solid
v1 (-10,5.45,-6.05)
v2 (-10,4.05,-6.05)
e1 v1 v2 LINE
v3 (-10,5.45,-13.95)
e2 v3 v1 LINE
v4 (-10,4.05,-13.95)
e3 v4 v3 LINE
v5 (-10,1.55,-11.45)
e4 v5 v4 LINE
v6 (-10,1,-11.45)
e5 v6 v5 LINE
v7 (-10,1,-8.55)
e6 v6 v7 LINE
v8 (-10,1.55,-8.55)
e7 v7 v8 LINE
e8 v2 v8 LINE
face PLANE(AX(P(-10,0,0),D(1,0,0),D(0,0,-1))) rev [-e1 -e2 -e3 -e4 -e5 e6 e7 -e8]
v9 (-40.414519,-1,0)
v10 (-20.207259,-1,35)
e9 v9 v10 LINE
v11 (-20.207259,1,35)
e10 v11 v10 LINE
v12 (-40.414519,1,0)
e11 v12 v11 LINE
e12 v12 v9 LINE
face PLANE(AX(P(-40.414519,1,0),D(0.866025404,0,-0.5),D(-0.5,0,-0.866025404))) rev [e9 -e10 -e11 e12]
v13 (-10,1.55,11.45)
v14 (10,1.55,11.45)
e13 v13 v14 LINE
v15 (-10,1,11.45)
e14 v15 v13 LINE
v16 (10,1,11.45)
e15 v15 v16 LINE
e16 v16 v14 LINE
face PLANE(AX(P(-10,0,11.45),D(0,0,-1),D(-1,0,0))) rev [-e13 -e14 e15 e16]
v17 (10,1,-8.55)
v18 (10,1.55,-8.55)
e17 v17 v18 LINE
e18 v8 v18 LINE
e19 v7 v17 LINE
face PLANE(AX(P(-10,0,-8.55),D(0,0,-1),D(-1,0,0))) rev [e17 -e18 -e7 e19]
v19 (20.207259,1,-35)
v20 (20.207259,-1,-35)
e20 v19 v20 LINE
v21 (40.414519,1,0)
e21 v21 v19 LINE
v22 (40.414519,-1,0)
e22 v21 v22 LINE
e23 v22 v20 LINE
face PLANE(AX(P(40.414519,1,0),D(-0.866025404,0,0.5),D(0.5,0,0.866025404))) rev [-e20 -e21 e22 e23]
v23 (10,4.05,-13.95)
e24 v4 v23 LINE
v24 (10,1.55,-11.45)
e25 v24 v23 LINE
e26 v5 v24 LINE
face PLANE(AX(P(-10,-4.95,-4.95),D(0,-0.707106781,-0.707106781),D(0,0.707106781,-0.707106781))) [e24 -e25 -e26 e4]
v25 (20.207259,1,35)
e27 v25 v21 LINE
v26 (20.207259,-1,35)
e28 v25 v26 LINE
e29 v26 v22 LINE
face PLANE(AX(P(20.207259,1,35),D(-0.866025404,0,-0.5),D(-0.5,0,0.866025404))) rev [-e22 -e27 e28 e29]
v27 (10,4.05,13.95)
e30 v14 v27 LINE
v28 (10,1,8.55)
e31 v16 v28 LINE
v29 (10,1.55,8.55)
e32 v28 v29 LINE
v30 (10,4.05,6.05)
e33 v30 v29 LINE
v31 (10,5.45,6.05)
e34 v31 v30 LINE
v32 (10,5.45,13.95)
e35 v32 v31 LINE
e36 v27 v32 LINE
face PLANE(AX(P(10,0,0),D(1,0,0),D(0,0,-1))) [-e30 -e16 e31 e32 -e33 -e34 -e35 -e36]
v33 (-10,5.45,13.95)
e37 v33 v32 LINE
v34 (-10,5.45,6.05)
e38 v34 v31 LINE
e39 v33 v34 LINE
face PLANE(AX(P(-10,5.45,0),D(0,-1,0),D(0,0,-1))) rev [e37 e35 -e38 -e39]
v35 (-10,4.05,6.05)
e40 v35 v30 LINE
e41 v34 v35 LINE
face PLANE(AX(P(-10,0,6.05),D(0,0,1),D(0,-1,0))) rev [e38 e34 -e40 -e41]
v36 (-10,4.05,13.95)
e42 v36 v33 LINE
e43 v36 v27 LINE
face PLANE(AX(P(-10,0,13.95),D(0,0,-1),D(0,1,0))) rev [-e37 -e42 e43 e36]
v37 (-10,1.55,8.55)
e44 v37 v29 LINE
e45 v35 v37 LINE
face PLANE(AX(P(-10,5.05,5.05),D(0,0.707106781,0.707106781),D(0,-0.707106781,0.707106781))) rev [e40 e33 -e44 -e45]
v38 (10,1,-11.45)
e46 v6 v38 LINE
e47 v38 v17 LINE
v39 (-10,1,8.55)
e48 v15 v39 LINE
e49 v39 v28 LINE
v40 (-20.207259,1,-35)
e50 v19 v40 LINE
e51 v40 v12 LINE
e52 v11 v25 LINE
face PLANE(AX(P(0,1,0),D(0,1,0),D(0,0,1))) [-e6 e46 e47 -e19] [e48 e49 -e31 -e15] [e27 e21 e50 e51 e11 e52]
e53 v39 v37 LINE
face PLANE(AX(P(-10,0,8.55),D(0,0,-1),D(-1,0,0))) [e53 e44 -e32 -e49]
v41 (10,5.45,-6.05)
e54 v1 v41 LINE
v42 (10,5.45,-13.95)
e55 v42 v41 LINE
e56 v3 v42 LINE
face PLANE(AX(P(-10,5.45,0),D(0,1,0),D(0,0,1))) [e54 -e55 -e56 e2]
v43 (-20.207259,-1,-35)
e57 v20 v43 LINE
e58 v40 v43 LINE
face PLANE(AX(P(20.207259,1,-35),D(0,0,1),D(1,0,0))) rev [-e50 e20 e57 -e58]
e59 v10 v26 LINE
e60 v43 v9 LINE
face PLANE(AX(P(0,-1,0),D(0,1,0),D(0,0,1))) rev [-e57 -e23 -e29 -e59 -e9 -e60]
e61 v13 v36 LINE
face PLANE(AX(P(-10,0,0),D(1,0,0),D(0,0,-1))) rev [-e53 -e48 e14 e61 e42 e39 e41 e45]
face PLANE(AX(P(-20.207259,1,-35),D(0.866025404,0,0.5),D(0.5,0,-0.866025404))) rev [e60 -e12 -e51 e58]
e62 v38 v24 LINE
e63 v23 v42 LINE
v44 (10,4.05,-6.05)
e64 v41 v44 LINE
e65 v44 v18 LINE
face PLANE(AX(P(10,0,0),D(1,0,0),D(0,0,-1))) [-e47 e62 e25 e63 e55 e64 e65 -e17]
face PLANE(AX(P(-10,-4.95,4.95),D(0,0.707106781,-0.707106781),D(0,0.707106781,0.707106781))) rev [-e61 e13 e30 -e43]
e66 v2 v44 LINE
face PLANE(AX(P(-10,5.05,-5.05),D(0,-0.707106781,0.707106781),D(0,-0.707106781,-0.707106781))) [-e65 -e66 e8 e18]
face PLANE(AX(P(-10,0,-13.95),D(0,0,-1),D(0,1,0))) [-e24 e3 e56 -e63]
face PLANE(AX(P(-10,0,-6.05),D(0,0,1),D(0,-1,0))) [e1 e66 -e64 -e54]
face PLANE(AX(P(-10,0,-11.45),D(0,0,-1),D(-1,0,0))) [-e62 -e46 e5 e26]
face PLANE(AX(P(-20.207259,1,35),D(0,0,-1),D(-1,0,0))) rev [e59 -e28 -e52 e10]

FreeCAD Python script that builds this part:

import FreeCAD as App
import Part
import Sketcher
from FreeCAD import Vector
Q = App.Units.Quantity


def add_polygon(sketch, points):
    """Adds a closed chain of lines whose ends are joined by coincident constraints."""
    first, n = sketch.GeometryCount, len(points)
    for a, b in zip(points, points[1:] + points[:1]):
        sketch.addGeometry(Part.LineSegment(App.Vector(*a, 0), App.Vector(*b, 0)), False)
    for i in range(n):
        sketch.addConstraint(Sketcher.Constraint("Coincident", first + i, 2, first + (i + 1) % n, 1))

doc = App.newDocument("Part")
body = doc.addObject("PartDesign::Body", "Body")

# Sketch on XZ plane
sketch1 = body.newObject("Sketcher::SketchObject", "Sketch")
sketch1.AttachmentSupport = (doc.getObject("XZ_Plane"), [""])
sketch1.MapMode = "FlatFace"
add_polygon(sketch1, [(40, 0), (20, -35), (-20, -35), (-40, 0), (-20, 35), (20, 35)])  # lines 0-5
sketch1.addConstraint(Sketcher.Constraint("Horizontal", 1))
sketch1.addConstraint(Sketcher.Constraint("Horizontal", 4))
sketch1.addConstraint(Sketcher.Constraint("Symmetric", 0, 2, 3, 2, -1, 1))
sketch1.addConstraint(Sketcher.Constraint("Symmetric", 2, 2, 5, 2, -1, 1))
sketch1.addConstraint(Sketcher.Constraint("PointOnObject", 2, 2, -1))
sketch1.addConstraint(Sketcher.Constraint("Parallel", 2, 5))
sketch1.addConstraint(Sketcher.Constraint("Vertical", 1, 2, 3, 2))
sketch1.addConstraint(Sketcher.Constraint("Angle", 0, Q("-120 deg")))
sketch1.addConstraint(Sketcher.Constraint("DistanceY", 0, 2, -1, 1, Q("35 mm")))
sketch1.addConstraint(Sketcher.Constraint("DistanceX", 1, 2, 1, 1, Q("40.414519 mm")))
pad1 = body.newObject("PartDesign::Pad", "Pad")
pad1.Profile = sketch1
pad1.Length = 2
pad1.Midplane = True

# Sketch on YZ plane
sketch2 = body.newObject("Sketcher::SketchObject", "Sketch001")
sketch2.AttachmentSupport = (doc.getObject("YZ_Plane"), [""])
sketch2.MapMode = "FlatFace"
add_polygon(sketch2, [(5.5, -6), (4, -6), (1.6, -8.6), (1, -8.6), (1, -11.4), (1.6, -11.4), (4, -13.9), (5.5, -13.9)])  # lines 0-7
add_polygon(sketch2, [(4, 6), (5.5, 6), (5.5, 13.9), (4, 13.9), (1.6, 11.4), (1, 11.4), (1, 8.6), (1.6, 8.6)])  # lines 8-15
sketch2.addConstraint(Sketcher.Constraint("Horizontal", 0))
sketch2.addConstraint(Sketcher.Constraint("Horizontal", 2))
sketch2.addConstraint(Sketcher.Constraint("Vertical", 3))
sketch2.addConstraint(Sketcher.Constraint("Horizontal", 4))
sketch2.addConstraint(Sketcher.Constraint("Horizontal", 6))
sketch2.addConstraint(Sketcher.Constraint("Vertical", 7))
sketch2.addConstraint(Sketcher.Constraint("Horizontal", 8))
sketch2.addConstraint(Sketcher.Constraint("Vertical", 9))
sketch2.addConstraint(Sketcher.Constraint("Horizontal", 10))
sketch2.addConstraint(Sketcher.Constraint("Horizontal", 12))
sketch2.addConstraint(Sketcher.Constraint("Vertical", 13))
sketch2.addConstraint(Sketcher.Constraint("Horizontal", 14))
sketch2.addConstraint(Sketcher.Constraint("Symmetric", 7, 2, 8, 2, -1))
sketch2.addConstraint(Sketcher.Constraint("Symmetric", 5, 2, 10, 2, -1))
sketch2.addConstraint(Sketcher.Constraint("Symmetric", 4, 2, 11, 2, -1))
sketch2.addConstraint(Sketcher.Constraint("Symmetric", 2, 2, 13, 2, -1))
sketch2.addConstraint(Sketcher.Constraint("Perpendicular", 1, 5))
sketch2.addConstraint(Sketcher.Constraint("Perpendicular", 5, 11))
sketch2.addConstraint(Sketcher.Constraint("Perpendicular", 11, 15))
sketch2.addConstraint(Sketcher.Constraint("Vertical", 1, 2, 4, 2))
sketch2.addConstraint(Sketcher.Constraint("Vertical", 0, 2, 5, 2))
sketch2.addConstraint(Sketcher.Constraint("Vertical", 11, 2, 14, 2))
sketch2.addConstraint(Sketcher.Constraint("DistanceX", 0, 2, 0, 1, Q("1.4 mm")))
sketch2.addConstraint(Sketcher.Constraint("DistanceY", 3, 2, 3, 1, Q("2.9 mm")))
sketch2.addConstraint(Sketcher.Constraint("DistanceY", 7, 1, 7, 2, Q("7.9 mm")))
sketch2.addConstraint(Sketcher.Constraint("DistanceX", -1, 1, 2, 2, Q("1 mm")))
sketch2.addConstraint(Sketcher.Constraint("DistanceY", 7, 2, 9, 2, Q("20 mm")))
sketch2.addConstraint(Sketcher.Constraint("DistanceX", 2, 2, 2, 1, Q("0.55 mm")))
pad2 = body.newObject("PartDesign::Pad", "Pad001")
pad2.Profile = sketch2
pad2.Length = 20
pad2.Midplane = True

doc.recompute()
